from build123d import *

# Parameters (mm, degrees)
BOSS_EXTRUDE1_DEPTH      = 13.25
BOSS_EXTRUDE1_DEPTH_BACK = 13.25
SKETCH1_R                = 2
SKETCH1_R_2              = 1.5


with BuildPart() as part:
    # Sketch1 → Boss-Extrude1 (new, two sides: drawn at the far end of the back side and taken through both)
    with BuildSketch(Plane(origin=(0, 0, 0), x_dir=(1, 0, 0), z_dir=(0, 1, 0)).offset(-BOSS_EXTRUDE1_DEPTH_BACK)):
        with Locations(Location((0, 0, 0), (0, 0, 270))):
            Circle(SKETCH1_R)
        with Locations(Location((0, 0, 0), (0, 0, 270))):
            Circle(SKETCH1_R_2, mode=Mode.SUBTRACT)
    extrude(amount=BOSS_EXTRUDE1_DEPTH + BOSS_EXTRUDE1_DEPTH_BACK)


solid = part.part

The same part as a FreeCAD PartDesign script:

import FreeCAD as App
import Part
import Sketcher

doc = App.newDocument("Part")
body = doc.addObject("PartDesign::Body", "Body")

# Sketch on XZ plane
sketch1 = body.newObject("Sketcher::SketchObject", "Sketch")
sketch1.AttachmentSupport = (doc.getObject("XZ_Plane"), [""])
sketch1.MapMode = "FlatFace"
sketch1.addGeometry(Part.Circle(App.Vector(0, 0, 0), App.Vector(0, 0, 1), 2), False)
sketch1.addGeometry(Part.Circle(App.Vector(0, 0, 0), App.Vector(0, 0, 1), 1.5), False)
sketch1.addConstraint(Sketcher.Constraint("Coincident", 0, 3, -1, 1))
sketch1.addConstraint(Sketcher.Constraint("Coincident", 1, 3, -1, 1))
sketch1.addConstraint(Sketcher.Constraint("Diameter", 0, 4.0))
sketch1.addConstraint(Sketcher.Constraint("Diameter", 1, 3.0))
pad1 = body.newObject("PartDesign::Pad", "Pad")
pad1.Profile = sketch1
pad1.Type = "TwoLengths"
pad1.Length = 13.25
pad1.Length2 = 13.25
pad1.Reversed = True

doc.recompute()
